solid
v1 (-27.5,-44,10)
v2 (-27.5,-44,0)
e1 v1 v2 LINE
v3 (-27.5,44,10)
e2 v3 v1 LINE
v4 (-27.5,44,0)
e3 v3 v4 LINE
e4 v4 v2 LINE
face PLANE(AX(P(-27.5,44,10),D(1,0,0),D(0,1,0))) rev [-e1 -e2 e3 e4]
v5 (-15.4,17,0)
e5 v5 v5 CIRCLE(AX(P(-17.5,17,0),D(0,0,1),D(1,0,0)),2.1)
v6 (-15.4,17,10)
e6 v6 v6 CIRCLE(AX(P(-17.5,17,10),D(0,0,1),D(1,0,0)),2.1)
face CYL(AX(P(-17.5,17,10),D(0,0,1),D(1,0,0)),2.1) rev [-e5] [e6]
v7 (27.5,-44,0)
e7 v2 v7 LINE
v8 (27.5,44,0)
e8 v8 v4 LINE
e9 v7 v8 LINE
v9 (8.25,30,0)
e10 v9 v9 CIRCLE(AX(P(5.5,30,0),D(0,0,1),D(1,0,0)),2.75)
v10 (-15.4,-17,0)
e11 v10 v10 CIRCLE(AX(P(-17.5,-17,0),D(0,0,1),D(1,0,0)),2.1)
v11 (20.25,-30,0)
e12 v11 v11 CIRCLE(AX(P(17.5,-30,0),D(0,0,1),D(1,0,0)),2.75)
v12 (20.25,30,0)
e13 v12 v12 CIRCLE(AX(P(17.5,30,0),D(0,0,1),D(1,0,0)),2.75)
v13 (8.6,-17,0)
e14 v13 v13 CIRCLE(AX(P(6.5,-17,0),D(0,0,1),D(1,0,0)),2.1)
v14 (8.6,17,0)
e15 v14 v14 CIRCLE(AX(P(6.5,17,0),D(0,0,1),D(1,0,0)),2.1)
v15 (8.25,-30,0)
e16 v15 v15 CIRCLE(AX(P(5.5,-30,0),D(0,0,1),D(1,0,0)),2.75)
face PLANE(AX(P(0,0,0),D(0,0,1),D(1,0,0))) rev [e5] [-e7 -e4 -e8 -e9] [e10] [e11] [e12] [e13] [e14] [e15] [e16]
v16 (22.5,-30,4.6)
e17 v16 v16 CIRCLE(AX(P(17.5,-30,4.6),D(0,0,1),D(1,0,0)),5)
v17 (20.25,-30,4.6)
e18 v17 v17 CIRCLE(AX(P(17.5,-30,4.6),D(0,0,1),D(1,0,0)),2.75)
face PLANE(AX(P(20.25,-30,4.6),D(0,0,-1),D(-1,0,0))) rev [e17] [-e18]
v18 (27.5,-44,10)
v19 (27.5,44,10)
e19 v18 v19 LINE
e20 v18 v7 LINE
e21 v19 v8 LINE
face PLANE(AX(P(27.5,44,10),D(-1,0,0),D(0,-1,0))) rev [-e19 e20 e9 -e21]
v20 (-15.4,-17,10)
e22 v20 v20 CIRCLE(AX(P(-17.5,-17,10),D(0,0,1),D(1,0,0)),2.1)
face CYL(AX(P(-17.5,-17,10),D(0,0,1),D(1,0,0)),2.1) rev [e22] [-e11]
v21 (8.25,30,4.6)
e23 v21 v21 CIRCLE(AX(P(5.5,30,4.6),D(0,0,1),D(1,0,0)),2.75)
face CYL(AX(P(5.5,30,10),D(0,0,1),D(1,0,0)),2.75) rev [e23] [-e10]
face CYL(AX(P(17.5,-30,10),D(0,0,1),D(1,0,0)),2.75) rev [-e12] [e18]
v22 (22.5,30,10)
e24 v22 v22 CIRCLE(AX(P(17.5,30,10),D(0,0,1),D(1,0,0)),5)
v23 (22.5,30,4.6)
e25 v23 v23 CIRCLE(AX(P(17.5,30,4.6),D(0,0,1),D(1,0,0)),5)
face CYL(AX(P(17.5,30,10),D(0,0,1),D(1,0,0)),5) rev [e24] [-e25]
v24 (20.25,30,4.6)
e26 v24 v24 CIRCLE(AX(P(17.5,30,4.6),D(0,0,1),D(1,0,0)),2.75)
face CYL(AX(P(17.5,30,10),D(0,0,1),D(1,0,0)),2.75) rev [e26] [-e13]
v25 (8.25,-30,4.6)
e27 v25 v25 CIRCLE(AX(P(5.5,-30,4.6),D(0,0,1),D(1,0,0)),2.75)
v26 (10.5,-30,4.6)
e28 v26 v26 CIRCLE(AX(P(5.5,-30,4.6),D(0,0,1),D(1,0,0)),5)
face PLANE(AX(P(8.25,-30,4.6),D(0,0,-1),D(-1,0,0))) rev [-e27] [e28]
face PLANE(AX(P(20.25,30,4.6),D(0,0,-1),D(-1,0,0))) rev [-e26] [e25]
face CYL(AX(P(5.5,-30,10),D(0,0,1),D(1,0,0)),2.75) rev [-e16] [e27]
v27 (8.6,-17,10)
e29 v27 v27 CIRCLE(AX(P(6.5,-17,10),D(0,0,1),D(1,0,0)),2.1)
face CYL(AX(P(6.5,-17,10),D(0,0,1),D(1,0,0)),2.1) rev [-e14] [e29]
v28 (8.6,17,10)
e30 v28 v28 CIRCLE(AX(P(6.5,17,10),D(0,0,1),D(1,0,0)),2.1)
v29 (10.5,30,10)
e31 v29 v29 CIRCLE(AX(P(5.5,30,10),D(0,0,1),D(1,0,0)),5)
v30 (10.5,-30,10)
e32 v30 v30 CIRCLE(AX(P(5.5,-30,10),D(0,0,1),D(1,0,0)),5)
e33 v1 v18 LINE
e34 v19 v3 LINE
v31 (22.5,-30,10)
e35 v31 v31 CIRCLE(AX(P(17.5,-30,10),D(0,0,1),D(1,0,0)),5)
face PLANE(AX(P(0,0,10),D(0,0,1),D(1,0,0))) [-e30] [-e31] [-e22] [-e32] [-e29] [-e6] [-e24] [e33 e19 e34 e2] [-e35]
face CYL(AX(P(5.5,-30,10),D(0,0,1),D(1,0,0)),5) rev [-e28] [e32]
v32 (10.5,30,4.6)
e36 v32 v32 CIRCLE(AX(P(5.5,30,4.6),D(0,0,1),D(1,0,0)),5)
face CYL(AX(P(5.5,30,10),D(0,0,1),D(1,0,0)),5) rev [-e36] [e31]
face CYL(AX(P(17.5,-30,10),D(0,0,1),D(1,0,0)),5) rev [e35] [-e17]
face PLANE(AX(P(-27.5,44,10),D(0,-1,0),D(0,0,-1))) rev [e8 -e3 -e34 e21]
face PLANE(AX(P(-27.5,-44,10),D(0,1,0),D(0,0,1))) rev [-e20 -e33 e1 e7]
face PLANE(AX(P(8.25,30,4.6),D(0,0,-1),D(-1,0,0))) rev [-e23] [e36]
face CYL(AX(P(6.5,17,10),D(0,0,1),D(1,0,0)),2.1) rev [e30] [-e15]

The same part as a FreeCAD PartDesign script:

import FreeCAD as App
import Part
import Sketcher
from FreeCAD import Vector


def add_polygon(sketch, points):
    """Adds a closed chain of lines whose ends are joined by coincident constraints."""
    first, n = sketch.GeometryCount, len(points)
    for a, b in zip(points, points[1:] + points[:1]):
        sketch.addGeometry(Part.LineSegment(App.Vector(*a, 0), App.Vector(*b, 0)), False)
    for i in range(n):
        sketch.addConstraint(Sketcher.Constraint("Coincident", first + i, 2, first + (i + 1) % n, 1))

doc = App.newDocument("Part")
body = doc.addObject("PartDesign::Body", "Body")

sketch1 = doc.addObject("Sketcher::SketchObject", "Sketch")
body.addObject(sketch1)
sketch1.AttachmentSupport = (doc.XY_Plane, [""])
sketch1.MapMode = "FlatFace"
add_polygon(sketch1, [(-28, 44), (-28, -44), (28, -44), (28, 44)])
sketch1.addConstraint(Sketcher.Constraint("Vertical", 0))
sketch1.addConstraint(Sketcher.Constraint("Horizontal", 1))
sketch1.addConstraint(Sketcher.Constraint("Vertical", 2))
sketch1.addConstraint(Sketcher.Constraint("Horizontal", 3))
sketch1.addConstraint(Sketcher.Constraint("Symmetric", 0, 2, 2, 2, -1, 1))
sketch1.addConstraint(Sketcher.Constraint("DistanceX", 1, 1, 1, 2, 55.0))
sketch1.addConstraint(Sketcher.Constraint("DistanceY", 0, 2, 0, 1, 88.0))
pad1 = doc.addObject("PartDesign::Pad", "Pad")
body.addObject(pad1)
pad1.Profile = sketch1
pad1.Length = 10

sketch2 = doc.addObject("Sketcher::SketchObject", "Sketch001")
body.addObject(sketch2)
sketch2.AttachmentSupport = (doc.XY_Plane, [""])
sketch2.MapMode = "FlatFace"
sketch2.AttachmentOffset = App.Placement(Vector(0, 0, 10), App.Rotation())
sketch2.addGeometry(Part.Circle(Vector(-17.5, 17, 0), Vector(0, 0, 1), 2.1), False)
sketch2.addGeometry(Part.Circle(Vector(6.5, 17, 0), Vector(0, 0, 1), 2.1), False)
sketch2.addGeometry(Part.Circle(Vector(-17.5, -17, 0), Vector(0, 0, 1), 2.1), False)
sketch2.addGeometry(Part.Circle(Vector(6.5, -17, 0), Vector(0, 0, 1), 2.1), False)
sketch2.addConstraint(Sketcher.Constraint("Equal", 0, 1))
sketch2.addConstraint(Sketcher.Constraint("Equal", 1, 2))
sketch2.addConstraint(Sketcher.Constraint("Equal", 2, 3))
sketch2.addConstraint(Sketcher.Constraint("Symmetric", 0, 3, 2, 3, -1))
sketch2.addConstraint(Sketcher.Constraint("Symmetric", 1, 3, 3, 3, -1))
sketch2.addConstraint(Sketcher.Constraint("Horizontal", 0, 3, 1, 3))
sketch2.addConstraint(Sketcher.Constraint("Diameter", 0, 4.2))
sketch2.addConstraint(Sketcher.Constraint("DistanceY", -1, 1, 0, 3, 17.0))
sketch2.addConstraint(Sketcher.Constraint("DistanceX", 0, 3, 1, 3, 24.0))
sketch2.addConstraint(Sketcher.Constraint("DistanceX", 0, 3, -1, 1, 17.5))
doc.recompute()
hole = doc.addObject("PartDesign::Hole", "Hole")
body.addObject(hole)
hole.Profile = sketch2
hole.ThreadType = "None"
hole.Diameter = 4.2
hole.DepthType = "ThroughAll"

sketch3 = doc.addObject("Sketcher::SketchObject", "Sketch002")
body.addObject(sketch3)
sketch3.AttachmentSupport = (doc.XY_Plane, [""])
sketch3.MapMode = "FlatFace"
sketch3.AttachmentOffset = App.Placement(Vector(0, 0, 10), App.Rotation())
sketch3.addGeometry(Part.Circle(Vector(5.5, 30, 0), Vector(0, 0, 1), 2.8), False)
sketch3.addGeometry(Part.Circle(Vector(17.5, 30, 0), Vector(0, 0, 1), 2.8), False)
sketch3.addGeometry(Part.Circle(Vector(17.5, -30, 0), Vector(0, 0, 1), 2.8), False)
sketch3.addGeometry(Part.Circle(Vector(5.5, -30, 0), Vector(0, 0, 1), 2.8), False)
sketch3.addConstraint(Sketcher.Constraint("Equal", 0, 1))
sketch3.addConstraint(Sketcher.Constraint("Equal", 1, 2))
sketch3.addConstraint(Sketcher.Constraint("Equal", 2, 3))
sketch3.addConstraint(Sketcher.Constraint("Symmetric", 1, 3, 2, 3, -1))
sketch3.addConstraint(Sketcher.Constraint("Symmetric", 0, 3, 3, 3, -1))
sketch3.addConstraint(Sketcher.Constraint("Horizontal", 0, 3, 1, 3))
sketch3.addConstraint(Sketcher.Constraint("Diameter", 0, 5.5))
sketch3.addConstraint(Sketcher.Constraint("DistanceY", -1, 1, 0, 3, 30.0))
sketch3.addConstraint(Sketcher.Constraint("DistanceX", 0, 3, 1, 3, 12.0))
sketch3.addConstraint(Sketcher.Constraint("DistanceX", -1, 1, 0, 3, 5.5))
doc.recompute()
hole2 = doc.addObject("PartDesign::Hole", "Hole001")
body.addObject(hole2)
hole2.Profile = sketch3
hole2.ThreadType = "None"
hole2.Diameter = 5.5
hole2.DepthType = "ThroughAll"
hole2.HoleCutType = "Counterbore"
hole2.HoleCutDiameter = 10
hole2.HoleCutDepth = 5.4

doc.recompute()
